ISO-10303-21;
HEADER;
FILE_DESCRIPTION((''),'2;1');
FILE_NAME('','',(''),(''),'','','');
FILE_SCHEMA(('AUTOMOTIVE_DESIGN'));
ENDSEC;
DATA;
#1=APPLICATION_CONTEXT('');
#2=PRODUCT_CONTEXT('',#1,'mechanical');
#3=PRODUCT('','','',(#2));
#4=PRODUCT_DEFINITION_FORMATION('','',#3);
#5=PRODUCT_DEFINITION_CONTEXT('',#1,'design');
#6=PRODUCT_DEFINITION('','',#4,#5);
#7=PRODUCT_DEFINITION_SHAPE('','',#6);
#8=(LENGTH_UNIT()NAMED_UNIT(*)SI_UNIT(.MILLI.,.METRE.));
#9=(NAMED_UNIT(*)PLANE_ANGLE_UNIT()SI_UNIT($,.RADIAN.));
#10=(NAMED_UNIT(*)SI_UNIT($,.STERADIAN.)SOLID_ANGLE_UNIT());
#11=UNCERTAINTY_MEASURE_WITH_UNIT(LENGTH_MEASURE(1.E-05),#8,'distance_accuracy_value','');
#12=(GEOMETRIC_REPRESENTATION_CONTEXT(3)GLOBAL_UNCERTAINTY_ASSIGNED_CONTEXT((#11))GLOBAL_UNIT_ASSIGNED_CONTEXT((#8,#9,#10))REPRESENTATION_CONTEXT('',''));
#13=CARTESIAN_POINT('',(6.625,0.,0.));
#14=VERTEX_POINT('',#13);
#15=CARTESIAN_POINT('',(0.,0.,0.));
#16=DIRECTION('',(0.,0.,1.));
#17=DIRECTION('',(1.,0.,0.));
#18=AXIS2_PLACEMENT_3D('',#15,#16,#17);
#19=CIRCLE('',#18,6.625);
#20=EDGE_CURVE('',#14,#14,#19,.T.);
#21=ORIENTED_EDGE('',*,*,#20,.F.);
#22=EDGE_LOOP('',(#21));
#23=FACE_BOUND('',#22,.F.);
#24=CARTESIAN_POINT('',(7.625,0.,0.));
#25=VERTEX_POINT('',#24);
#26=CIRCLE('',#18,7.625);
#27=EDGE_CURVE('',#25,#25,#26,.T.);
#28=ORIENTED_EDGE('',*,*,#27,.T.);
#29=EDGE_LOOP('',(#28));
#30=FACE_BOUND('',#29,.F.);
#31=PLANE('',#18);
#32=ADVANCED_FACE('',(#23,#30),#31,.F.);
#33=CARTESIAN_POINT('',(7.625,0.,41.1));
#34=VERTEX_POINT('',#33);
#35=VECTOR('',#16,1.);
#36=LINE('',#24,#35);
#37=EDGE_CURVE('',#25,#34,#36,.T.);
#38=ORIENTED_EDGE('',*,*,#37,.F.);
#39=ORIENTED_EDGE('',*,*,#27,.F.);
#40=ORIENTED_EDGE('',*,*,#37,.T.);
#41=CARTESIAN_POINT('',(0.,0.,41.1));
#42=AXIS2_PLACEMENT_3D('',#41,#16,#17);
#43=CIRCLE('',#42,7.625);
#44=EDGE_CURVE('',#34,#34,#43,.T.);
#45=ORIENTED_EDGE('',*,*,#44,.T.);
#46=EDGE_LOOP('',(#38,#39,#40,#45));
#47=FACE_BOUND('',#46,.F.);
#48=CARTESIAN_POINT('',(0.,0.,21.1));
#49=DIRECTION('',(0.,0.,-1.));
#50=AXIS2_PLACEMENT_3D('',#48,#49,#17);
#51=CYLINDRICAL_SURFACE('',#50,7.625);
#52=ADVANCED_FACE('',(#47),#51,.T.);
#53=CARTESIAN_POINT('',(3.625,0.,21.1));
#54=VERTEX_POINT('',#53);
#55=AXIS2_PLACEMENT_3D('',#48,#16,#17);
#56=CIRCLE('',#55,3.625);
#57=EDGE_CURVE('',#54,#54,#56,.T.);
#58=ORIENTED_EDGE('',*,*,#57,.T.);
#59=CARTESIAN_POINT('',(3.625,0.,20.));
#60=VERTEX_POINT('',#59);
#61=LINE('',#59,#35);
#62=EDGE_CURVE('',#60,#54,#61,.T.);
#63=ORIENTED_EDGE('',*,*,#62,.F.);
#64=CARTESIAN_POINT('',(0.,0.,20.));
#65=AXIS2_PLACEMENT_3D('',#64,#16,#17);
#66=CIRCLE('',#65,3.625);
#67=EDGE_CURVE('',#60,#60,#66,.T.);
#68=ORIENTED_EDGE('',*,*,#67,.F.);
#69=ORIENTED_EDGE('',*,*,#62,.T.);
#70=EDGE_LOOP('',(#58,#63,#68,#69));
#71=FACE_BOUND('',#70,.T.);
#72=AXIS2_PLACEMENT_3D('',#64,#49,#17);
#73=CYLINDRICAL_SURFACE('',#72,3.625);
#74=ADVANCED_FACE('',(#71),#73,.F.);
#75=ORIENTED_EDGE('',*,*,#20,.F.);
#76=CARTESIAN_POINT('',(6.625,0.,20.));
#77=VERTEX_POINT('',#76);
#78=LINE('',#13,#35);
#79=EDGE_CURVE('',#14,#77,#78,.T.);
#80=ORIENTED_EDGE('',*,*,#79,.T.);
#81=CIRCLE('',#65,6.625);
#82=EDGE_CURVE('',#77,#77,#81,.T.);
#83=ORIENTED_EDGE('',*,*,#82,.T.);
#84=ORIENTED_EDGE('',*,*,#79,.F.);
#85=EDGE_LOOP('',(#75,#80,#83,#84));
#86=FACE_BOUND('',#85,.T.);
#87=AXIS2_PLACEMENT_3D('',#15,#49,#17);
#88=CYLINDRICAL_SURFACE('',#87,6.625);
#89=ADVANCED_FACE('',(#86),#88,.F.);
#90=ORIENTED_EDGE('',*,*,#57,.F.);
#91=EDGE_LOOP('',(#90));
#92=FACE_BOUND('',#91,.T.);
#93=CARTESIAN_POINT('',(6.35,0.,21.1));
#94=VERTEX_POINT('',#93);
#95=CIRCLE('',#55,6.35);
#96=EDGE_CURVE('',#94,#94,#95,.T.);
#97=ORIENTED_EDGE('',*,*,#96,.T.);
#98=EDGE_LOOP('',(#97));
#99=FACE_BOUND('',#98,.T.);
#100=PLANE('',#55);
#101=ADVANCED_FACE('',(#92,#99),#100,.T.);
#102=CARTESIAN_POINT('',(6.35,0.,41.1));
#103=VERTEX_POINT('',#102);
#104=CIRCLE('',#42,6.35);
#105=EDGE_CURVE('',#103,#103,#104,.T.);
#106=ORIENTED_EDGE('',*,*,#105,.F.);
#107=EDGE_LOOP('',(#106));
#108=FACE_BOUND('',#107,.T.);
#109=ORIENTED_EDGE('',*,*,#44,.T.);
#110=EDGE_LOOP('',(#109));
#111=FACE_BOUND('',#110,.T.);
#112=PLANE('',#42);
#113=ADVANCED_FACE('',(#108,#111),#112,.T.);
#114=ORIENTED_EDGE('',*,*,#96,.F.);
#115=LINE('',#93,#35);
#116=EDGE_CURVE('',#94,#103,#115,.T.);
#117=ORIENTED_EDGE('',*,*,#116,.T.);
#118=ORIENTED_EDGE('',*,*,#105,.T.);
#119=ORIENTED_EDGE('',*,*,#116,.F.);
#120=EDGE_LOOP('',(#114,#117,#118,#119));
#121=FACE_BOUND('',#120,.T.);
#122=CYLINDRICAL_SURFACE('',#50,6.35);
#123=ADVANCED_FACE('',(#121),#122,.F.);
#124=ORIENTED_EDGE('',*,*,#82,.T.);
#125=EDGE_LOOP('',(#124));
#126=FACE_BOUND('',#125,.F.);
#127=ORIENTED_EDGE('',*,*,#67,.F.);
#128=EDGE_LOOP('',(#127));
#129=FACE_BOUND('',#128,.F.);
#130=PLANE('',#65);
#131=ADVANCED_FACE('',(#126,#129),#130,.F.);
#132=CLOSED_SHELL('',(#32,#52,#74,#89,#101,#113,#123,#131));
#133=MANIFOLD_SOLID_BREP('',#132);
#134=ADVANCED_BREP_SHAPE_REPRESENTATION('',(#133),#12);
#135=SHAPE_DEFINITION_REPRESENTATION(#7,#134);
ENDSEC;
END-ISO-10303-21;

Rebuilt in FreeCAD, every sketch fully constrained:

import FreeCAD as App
import Part
import Sketcher

V = App.Vector

doc = App.newDocument("Part")
body = doc.addObject("PartDesign::Body", "Body")

# Sketch on XY plane
sketch1 = doc.addObject("Sketcher::SketchObject", "Sketch")
body.addObject(sketch1)
sketch1.AttachmentSupport = (doc.XY_Plane, [""])
sketch1.MapMode = "FlatFace"
sketch1.addGeometry([
    Part.Circle(V(0, 0, 0), V(0, 0, 1), 8),
    Part.Circle(V(0, 0, 0), V(0, 0, 1), 7),
], False)
sketch1.addConstraint([
    Sketcher.Constraint("Coincident", 0, 3, -1, 1),
    Sketcher.Constraint("Coincident", 1, 3, -1, 1),
    Sketcher.Constraint("Diameter", 0, 15.25),
    Sketcher.Constraint("Diameter", 1, 13.25),
])
pad1 = doc.addObject("PartDesign::Pad", "Pad")
body.addObject(pad1)
pad1.Profile = sketch1
pad1.Length = 20

# Sketch on XY plane
sketch2 = doc.addObject("Sketcher::SketchObject", "Sketch001")
body.addObject(sketch2)
sketch2.AttachmentSupport = (doc.XY_Plane, [""])
sketch2.MapMode = "FlatFace"
sketch2.AttachmentOffset = App.Placement(V(0, 0, 20), App.Rotation())
sketch2.addGeometry([
    Part.Circle(V(0, 0, 0), V(0, 0, 1), 7.6),
    Part.Circle(V(0, 0, 0), V(0, 0, 1), 3.6),
], False)
sketch2.addConstraint([
    Sketcher.Constraint("Coincident", 0, 3, -1, 1),
    Sketcher.Constraint("Coincident", 1, 3, -1, 1),
    Sketcher.Constraint("Diameter", 0, 15.25),
    Sketcher.Constraint("Diameter", 1, 7.25),
])
pad2 = doc.addObject("PartDesign::Pad", "Pad001")
body.addObject(pad2)
pad2.Profile = sketch2
pad2.Length = 1.1

# Sketch on XY plane
sketch3 = doc.addObject("Sketcher::SketchObject", "Sketch002")
body.addObject(sketch3)
sketch3.AttachmentSupport = (doc.XY_Plane, [""])
sketch3.MapMode = "FlatFace"
sketch3.AttachmentOffset = App.Placement(V(0, 0, 21.1), App.Rotation())
sketch3.addGeometry([
    Part.Circle(V(0, 0, 0), V(0, 0, 1), 8),
    Part.Circle(V(0, 0, 0), V(0, 0, 1), 6),
], False)
sketch3.addConstraint([
    Sketcher.Constraint("Coincident", 0, 3, -1, 1),
    Sketcher.Constraint("Coincident", 1, 3, -1, 1),
    Sketcher.Constraint("Diameter", 1, 12.7),
    Sketcher.Constraint("Diameter", 0, 15.25),
])
pad3 = doc.addObject("PartDesign::Pad", "Pad002")
body.addObject(pad3)
pad3.Profile = sketch3
pad3.Length = 20

doc.recompute()
